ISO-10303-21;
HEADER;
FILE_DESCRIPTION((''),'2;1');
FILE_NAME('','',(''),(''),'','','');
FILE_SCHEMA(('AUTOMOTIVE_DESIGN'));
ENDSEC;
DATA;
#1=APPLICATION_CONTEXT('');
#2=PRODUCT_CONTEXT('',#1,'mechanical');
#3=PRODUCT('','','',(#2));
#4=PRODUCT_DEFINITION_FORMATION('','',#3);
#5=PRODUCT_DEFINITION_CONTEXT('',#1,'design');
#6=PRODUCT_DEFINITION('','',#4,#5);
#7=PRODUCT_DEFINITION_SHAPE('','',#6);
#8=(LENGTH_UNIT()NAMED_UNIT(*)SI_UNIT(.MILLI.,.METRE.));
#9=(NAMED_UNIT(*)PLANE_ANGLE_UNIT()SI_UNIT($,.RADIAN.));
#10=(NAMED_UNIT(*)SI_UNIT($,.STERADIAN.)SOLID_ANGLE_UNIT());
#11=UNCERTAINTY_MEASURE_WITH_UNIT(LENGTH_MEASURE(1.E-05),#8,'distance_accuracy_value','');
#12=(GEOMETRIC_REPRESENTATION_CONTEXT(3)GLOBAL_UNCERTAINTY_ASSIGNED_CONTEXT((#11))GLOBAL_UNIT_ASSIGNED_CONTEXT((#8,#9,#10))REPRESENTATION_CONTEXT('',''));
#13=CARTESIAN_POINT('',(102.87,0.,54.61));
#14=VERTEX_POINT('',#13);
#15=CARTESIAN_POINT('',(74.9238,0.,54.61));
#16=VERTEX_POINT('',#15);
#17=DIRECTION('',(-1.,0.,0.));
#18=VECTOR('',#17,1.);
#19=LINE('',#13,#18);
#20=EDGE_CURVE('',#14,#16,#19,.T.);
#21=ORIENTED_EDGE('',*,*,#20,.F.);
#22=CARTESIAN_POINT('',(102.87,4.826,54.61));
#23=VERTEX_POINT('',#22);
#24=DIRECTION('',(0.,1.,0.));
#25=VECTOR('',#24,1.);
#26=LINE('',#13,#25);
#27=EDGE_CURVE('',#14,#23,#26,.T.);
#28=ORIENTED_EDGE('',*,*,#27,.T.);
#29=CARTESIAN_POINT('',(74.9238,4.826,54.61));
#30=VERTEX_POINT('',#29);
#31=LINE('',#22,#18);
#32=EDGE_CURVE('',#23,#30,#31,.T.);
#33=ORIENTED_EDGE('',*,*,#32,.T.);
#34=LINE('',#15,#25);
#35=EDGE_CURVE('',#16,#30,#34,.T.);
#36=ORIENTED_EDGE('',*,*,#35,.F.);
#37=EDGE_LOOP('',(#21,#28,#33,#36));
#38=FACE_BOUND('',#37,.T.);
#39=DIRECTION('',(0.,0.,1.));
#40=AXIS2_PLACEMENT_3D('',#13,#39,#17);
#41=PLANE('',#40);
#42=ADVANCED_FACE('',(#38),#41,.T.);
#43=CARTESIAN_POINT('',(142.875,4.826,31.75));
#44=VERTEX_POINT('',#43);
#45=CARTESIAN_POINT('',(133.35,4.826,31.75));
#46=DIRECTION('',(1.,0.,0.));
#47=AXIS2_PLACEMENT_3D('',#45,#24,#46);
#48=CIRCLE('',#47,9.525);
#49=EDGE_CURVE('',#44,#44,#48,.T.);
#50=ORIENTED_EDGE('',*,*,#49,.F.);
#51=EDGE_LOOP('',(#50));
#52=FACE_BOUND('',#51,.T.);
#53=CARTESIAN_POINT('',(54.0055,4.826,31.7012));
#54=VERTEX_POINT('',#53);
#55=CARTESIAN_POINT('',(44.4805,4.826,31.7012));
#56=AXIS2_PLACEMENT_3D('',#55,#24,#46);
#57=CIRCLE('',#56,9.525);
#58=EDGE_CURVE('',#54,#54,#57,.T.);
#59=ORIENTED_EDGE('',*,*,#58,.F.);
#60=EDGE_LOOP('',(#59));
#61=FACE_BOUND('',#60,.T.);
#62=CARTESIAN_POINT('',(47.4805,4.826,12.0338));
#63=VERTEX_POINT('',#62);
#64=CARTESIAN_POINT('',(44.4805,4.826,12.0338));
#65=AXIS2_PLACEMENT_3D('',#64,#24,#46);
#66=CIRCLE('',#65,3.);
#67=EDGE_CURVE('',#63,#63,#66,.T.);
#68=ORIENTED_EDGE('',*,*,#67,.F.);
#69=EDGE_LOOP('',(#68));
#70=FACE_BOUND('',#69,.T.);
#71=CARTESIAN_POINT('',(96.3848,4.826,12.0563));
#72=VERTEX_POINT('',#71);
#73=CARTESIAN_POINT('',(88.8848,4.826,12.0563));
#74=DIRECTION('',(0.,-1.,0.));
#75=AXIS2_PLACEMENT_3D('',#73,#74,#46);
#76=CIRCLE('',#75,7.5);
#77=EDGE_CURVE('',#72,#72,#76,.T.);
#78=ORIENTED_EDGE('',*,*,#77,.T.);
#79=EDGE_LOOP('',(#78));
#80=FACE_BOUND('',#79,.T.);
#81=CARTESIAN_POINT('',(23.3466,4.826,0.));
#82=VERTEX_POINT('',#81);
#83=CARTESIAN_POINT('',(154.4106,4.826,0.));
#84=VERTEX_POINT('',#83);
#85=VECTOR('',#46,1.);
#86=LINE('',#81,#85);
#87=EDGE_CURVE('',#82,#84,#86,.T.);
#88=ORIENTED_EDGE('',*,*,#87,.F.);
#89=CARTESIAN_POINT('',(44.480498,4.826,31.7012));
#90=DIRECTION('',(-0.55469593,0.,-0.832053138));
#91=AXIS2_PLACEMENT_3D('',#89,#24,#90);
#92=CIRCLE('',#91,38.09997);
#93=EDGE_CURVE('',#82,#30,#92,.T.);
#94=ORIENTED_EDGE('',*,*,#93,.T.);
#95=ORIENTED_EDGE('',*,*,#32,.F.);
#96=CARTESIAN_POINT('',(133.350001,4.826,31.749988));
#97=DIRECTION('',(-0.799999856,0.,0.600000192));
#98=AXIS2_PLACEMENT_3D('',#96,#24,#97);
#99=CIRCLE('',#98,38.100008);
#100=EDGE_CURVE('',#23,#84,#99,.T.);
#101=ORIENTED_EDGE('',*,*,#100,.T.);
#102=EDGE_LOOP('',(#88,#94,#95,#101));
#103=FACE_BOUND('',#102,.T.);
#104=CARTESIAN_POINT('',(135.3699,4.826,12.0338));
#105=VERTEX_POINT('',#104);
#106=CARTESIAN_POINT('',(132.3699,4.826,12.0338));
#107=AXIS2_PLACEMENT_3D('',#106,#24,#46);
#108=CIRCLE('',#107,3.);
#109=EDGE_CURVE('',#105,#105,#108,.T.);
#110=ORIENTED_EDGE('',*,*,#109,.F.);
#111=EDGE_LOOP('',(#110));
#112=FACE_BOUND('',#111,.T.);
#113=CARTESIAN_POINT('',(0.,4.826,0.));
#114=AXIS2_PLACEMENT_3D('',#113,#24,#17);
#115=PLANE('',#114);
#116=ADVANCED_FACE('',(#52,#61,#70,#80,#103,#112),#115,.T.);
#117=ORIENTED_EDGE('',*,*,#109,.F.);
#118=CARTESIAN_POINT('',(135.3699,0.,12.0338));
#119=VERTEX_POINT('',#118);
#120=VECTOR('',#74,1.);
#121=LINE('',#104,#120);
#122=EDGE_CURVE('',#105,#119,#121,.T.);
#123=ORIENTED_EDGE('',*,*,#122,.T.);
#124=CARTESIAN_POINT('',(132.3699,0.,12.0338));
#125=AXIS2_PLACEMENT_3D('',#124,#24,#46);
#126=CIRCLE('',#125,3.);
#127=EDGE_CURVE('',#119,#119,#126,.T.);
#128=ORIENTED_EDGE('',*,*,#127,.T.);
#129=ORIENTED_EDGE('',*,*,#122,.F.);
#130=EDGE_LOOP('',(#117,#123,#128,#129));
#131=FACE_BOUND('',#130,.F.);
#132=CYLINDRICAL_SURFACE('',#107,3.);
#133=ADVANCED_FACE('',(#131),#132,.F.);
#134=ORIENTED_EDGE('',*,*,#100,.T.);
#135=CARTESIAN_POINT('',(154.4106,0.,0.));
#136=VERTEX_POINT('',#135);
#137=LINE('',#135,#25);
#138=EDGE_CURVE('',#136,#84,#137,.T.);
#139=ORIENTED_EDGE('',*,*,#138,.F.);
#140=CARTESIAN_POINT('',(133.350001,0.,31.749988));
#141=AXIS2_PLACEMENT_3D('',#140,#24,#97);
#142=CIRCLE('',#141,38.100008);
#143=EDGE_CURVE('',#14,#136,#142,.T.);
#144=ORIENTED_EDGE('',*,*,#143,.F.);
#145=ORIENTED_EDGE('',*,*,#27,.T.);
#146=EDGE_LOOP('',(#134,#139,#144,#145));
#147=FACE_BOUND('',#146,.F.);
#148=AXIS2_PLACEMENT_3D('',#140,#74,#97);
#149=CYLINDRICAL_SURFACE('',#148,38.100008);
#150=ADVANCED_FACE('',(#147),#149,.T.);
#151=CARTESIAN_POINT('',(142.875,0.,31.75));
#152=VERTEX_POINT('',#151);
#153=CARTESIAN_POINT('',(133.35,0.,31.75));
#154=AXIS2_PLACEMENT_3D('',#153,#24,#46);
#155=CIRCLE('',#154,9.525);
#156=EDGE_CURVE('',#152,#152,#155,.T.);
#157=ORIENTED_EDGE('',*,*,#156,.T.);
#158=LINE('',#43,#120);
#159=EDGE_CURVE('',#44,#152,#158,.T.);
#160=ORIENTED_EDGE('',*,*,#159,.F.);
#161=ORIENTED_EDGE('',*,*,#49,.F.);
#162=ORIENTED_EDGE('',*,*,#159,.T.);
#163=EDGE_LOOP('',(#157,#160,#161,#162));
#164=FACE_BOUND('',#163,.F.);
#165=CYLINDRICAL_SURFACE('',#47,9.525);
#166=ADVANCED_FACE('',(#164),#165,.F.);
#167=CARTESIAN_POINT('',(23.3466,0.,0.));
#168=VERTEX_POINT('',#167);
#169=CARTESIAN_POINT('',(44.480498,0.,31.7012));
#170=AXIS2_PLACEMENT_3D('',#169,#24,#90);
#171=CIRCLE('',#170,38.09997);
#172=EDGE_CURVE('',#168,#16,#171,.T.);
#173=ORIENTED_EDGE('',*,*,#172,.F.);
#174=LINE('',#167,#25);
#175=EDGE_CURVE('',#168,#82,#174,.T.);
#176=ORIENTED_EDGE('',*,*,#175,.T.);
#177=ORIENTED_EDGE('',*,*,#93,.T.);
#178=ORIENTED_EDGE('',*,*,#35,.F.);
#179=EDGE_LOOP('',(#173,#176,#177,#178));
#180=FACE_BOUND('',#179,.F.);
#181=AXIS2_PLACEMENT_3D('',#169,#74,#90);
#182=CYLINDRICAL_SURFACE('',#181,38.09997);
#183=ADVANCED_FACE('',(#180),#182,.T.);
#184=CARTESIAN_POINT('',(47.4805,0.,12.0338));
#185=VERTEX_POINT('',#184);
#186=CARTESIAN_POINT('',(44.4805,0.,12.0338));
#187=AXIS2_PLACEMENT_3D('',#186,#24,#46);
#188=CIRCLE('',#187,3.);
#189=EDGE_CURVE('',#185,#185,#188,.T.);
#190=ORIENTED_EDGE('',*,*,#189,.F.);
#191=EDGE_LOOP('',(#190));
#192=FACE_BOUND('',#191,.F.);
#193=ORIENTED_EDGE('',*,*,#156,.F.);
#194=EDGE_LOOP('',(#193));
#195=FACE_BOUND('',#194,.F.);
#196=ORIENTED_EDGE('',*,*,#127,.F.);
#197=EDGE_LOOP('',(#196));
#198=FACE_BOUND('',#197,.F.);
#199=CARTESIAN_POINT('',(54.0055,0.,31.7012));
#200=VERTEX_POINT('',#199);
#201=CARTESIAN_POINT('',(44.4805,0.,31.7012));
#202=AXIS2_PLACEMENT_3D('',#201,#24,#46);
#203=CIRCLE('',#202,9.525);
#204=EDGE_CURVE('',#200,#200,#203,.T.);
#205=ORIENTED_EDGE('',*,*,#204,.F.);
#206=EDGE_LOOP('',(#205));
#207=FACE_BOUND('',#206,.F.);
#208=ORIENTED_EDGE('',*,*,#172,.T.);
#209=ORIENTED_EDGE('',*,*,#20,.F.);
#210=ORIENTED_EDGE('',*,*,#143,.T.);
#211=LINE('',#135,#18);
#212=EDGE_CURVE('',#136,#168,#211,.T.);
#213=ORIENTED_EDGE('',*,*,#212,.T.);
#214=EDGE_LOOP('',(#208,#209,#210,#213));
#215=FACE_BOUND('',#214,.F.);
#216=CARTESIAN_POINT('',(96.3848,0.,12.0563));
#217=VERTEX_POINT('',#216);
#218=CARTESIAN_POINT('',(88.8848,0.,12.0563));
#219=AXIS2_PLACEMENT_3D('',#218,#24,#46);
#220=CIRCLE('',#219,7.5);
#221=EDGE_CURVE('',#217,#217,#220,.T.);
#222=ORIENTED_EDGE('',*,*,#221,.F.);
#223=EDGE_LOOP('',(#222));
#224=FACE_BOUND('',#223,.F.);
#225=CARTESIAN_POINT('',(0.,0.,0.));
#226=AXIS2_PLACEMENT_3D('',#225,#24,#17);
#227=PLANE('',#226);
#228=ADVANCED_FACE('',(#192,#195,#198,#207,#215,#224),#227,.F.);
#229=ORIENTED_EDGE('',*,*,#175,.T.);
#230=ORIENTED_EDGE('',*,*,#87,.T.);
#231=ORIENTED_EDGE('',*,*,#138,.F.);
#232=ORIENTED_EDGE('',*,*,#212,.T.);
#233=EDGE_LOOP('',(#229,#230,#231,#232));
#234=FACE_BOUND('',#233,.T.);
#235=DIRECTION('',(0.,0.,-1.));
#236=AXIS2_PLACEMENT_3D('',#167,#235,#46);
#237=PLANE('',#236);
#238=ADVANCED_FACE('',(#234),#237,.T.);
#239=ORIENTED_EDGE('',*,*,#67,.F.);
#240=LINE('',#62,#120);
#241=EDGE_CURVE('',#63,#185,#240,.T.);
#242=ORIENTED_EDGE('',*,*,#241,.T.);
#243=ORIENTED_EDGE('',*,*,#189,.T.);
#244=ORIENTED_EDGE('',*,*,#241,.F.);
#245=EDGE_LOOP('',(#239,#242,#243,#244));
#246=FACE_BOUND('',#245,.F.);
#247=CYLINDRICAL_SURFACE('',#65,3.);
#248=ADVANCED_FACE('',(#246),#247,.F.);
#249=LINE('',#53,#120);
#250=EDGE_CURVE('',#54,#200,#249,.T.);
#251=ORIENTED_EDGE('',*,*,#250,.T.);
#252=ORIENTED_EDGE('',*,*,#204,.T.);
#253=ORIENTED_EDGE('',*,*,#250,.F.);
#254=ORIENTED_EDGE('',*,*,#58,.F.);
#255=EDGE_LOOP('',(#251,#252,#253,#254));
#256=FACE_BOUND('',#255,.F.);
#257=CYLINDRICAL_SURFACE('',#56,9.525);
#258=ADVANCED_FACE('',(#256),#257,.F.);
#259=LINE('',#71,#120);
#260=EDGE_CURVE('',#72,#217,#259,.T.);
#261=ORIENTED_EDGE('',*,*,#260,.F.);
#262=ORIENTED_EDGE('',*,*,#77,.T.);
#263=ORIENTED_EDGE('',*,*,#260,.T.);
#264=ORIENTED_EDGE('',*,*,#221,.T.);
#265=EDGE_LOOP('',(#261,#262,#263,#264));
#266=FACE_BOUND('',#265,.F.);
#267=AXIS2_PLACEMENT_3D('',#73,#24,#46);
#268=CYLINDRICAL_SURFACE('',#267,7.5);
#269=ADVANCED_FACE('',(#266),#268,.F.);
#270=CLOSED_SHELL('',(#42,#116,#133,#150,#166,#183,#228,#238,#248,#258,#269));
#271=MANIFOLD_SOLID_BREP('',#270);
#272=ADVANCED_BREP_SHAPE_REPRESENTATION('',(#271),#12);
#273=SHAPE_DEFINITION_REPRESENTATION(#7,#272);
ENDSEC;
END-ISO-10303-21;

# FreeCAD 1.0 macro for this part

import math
import FreeCAD as App
import Part
import Sketcher
from FreeCAD import Vector
Q = App.Units.Quantity

doc = App.newDocument("Part")
body = doc.addObject("PartDesign::Body", "Body")

# Sketch on XZ plane
sketch1 = doc.addObject("Sketcher::SketchObject", "Sketch")
body.addObject(sketch1)
sketch1.AttachmentSupport = (doc.XZ_Plane, [""])
sketch1.MapMode = "FlatFace"
sketch1.addGeometry(Part.LineSegment(Vector(154, 0, 0), Vector(23, 0, 0)), False)
sketch1.addGeometry(Part.ArcOfCircle(Part.Circle(Vector(44, 32, 0), Vector(0, 0, 1), 38), math.radians(37), math.radians(236)), False)
sketch1.addGeometry(Part.LineSegment(Vector(75, 55, 0), Vector(103, 55, 0)), False)
sketch1.addGeometry(Part.ArcOfCircle(Part.Circle(Vector(133, 32, 0), Vector(0, 0, 1), 38), math.radians(-56), math.radians(143)), False)
sketch1.addConstraint(Sketcher.Constraint("Coincident", 0, 2, 1, 2))
sketch1.addConstraint(Sketcher.Constraint("Coincident", 1, 1, 2, 1))
sketch1.addConstraint(Sketcher.Constraint("Coincident", 2, 2, 3, 2))
sketch1.addConstraint(Sketcher.Constraint("Coincident", 3, 1, 0, 1))
sketch1.addConstraint(Sketcher.Constraint("Horizontal", 0))
sketch1.addConstraint(Sketcher.Constraint("Horizontal", 2))
sketch1.addConstraint(Sketcher.Constraint("Equal", 1, 3))
sketch1.addConstraint(Sketcher.Constraint("PointOnObject", 0, 2, -1))
sketch1.addConstraint(Sketcher.Constraint("Radius", 1, Q("1.5 in")))
sketch1.addConstraint(Sketcher.Constraint("DistanceX", 0, 2, 0, 1, Q("5.16 in")))
sketch1.addConstraint(Sketcher.Constraint("DistanceY", -1, 1, 1, 1, Q("2.15 in")))
sketch1.addConstraint(Sketcher.Constraint("DistanceY", 3, 3, 1, 1, Q("0.9 in")))
sketch1.addConstraint(Sketcher.Constraint("DistanceX", -1, 1, 3, 3, Q("5.25 in")))
sketch1.addConstraint(Sketcher.Constraint("DistanceX", 2, 1, 2, 2, 27.9462))
pad1 = doc.addObject("PartDesign::Pad", "Pad")
body.addObject(pad1)
pad1.Profile = sketch1
pad1.Length = Q("0.19 in")
pad1.Reversed = True

# Sketch on XZ plane
sketch2 = doc.addObject("Sketcher::SketchObject", "Sketch001")
body.addObject(sketch2)
sketch2.AttachmentSupport = (doc.XZ_Plane, [""])
sketch2.MapMode = "FlatFace"
sketch2.AttachmentOffset = App.Placement(Vector(0, 0, -0.19 * 25.4), App.Rotation())
sketch2.addGeometry(Part.Circle(Vector(88.9, 12.1, 0), Vector(0, 0, 1), 7.5), False)
sketch2.addGeometry(Part.Circle(Vector(44.5, 31.7, 0), Vector(0, 0, 1), 9.5), False)
sketch2.addGeometry(Part.Circle(Vector(133.3, 31.8, 0), Vector(0, 0, 1), 9.5), False)
sketch2.addGeometry(Part.Circle(Vector(132.4, 12, 0), Vector(0, 0, 1), 3), False)
sketch2.addGeometry(Part.Circle(Vector(44.5, 12, 0), Vector(0, 0, 1), 3), False)
sketch2.addConstraint(Sketcher.Constraint("Equal", 1, 2))
sketch2.addConstraint(Sketcher.Constraint("Equal", 3, 4))
sketch2.addConstraint(Sketcher.Constraint("Horizontal", 3, 3, 4, 3))
sketch2.addConstraint(Sketcher.Constraint("Vertical", 1, 3, 4, 3))
sketch2.addConstraint(Sketcher.Constraint("Diameter", 0, 15.0))
sketch2.addConstraint(Sketcher.Constraint("Diameter", 1, Q("0.75 in")))
sketch2.addConstraint(Sketcher.Constraint("Diameter", 3, 6.0))
sketch2.addConstraint(Sketcher.Constraint("DistanceX", -1, 1, 2, 3, Q("5.25 in")))
sketch2.addConstraint(Sketcher.Constraint("DistanceY", -1, 1, 2, 3, Q("1.25 in")))
sketch2.addConstraint(Sketcher.Constraint("DistanceX", 0, 3, 3, 3, Q("1.712 in")))
sketch2.addConstraint(Sketcher.Constraint("DistanceX", -1, 1, 0, 3, Q("3.4994 in")))
sketch2.addConstraint(Sketcher.Constraint("DistanceX", -1, 1, 1, 3, Q("1.7512 in")))
sketch2.addConstraint(Sketcher.Constraint("DistanceY", 3, 3, 1, 3, Q("0.7743 in")))
sketch2.addConstraint(Sketcher.Constraint("DistanceY", -1, 1, 0, 3, 12.0563))
sketch2.addConstraint(Sketcher.Constraint("DistanceY", -1, 1, 1, 3, 31.7012))
pocket1 = doc.addObject("PartDesign::Pocket", "Pocket")
body.addObject(pocket1)
pocket1.Profile = sketch2
pocket1.Type = "ThroughAll"
pocket1.Reversed = True

doc.recompute()
